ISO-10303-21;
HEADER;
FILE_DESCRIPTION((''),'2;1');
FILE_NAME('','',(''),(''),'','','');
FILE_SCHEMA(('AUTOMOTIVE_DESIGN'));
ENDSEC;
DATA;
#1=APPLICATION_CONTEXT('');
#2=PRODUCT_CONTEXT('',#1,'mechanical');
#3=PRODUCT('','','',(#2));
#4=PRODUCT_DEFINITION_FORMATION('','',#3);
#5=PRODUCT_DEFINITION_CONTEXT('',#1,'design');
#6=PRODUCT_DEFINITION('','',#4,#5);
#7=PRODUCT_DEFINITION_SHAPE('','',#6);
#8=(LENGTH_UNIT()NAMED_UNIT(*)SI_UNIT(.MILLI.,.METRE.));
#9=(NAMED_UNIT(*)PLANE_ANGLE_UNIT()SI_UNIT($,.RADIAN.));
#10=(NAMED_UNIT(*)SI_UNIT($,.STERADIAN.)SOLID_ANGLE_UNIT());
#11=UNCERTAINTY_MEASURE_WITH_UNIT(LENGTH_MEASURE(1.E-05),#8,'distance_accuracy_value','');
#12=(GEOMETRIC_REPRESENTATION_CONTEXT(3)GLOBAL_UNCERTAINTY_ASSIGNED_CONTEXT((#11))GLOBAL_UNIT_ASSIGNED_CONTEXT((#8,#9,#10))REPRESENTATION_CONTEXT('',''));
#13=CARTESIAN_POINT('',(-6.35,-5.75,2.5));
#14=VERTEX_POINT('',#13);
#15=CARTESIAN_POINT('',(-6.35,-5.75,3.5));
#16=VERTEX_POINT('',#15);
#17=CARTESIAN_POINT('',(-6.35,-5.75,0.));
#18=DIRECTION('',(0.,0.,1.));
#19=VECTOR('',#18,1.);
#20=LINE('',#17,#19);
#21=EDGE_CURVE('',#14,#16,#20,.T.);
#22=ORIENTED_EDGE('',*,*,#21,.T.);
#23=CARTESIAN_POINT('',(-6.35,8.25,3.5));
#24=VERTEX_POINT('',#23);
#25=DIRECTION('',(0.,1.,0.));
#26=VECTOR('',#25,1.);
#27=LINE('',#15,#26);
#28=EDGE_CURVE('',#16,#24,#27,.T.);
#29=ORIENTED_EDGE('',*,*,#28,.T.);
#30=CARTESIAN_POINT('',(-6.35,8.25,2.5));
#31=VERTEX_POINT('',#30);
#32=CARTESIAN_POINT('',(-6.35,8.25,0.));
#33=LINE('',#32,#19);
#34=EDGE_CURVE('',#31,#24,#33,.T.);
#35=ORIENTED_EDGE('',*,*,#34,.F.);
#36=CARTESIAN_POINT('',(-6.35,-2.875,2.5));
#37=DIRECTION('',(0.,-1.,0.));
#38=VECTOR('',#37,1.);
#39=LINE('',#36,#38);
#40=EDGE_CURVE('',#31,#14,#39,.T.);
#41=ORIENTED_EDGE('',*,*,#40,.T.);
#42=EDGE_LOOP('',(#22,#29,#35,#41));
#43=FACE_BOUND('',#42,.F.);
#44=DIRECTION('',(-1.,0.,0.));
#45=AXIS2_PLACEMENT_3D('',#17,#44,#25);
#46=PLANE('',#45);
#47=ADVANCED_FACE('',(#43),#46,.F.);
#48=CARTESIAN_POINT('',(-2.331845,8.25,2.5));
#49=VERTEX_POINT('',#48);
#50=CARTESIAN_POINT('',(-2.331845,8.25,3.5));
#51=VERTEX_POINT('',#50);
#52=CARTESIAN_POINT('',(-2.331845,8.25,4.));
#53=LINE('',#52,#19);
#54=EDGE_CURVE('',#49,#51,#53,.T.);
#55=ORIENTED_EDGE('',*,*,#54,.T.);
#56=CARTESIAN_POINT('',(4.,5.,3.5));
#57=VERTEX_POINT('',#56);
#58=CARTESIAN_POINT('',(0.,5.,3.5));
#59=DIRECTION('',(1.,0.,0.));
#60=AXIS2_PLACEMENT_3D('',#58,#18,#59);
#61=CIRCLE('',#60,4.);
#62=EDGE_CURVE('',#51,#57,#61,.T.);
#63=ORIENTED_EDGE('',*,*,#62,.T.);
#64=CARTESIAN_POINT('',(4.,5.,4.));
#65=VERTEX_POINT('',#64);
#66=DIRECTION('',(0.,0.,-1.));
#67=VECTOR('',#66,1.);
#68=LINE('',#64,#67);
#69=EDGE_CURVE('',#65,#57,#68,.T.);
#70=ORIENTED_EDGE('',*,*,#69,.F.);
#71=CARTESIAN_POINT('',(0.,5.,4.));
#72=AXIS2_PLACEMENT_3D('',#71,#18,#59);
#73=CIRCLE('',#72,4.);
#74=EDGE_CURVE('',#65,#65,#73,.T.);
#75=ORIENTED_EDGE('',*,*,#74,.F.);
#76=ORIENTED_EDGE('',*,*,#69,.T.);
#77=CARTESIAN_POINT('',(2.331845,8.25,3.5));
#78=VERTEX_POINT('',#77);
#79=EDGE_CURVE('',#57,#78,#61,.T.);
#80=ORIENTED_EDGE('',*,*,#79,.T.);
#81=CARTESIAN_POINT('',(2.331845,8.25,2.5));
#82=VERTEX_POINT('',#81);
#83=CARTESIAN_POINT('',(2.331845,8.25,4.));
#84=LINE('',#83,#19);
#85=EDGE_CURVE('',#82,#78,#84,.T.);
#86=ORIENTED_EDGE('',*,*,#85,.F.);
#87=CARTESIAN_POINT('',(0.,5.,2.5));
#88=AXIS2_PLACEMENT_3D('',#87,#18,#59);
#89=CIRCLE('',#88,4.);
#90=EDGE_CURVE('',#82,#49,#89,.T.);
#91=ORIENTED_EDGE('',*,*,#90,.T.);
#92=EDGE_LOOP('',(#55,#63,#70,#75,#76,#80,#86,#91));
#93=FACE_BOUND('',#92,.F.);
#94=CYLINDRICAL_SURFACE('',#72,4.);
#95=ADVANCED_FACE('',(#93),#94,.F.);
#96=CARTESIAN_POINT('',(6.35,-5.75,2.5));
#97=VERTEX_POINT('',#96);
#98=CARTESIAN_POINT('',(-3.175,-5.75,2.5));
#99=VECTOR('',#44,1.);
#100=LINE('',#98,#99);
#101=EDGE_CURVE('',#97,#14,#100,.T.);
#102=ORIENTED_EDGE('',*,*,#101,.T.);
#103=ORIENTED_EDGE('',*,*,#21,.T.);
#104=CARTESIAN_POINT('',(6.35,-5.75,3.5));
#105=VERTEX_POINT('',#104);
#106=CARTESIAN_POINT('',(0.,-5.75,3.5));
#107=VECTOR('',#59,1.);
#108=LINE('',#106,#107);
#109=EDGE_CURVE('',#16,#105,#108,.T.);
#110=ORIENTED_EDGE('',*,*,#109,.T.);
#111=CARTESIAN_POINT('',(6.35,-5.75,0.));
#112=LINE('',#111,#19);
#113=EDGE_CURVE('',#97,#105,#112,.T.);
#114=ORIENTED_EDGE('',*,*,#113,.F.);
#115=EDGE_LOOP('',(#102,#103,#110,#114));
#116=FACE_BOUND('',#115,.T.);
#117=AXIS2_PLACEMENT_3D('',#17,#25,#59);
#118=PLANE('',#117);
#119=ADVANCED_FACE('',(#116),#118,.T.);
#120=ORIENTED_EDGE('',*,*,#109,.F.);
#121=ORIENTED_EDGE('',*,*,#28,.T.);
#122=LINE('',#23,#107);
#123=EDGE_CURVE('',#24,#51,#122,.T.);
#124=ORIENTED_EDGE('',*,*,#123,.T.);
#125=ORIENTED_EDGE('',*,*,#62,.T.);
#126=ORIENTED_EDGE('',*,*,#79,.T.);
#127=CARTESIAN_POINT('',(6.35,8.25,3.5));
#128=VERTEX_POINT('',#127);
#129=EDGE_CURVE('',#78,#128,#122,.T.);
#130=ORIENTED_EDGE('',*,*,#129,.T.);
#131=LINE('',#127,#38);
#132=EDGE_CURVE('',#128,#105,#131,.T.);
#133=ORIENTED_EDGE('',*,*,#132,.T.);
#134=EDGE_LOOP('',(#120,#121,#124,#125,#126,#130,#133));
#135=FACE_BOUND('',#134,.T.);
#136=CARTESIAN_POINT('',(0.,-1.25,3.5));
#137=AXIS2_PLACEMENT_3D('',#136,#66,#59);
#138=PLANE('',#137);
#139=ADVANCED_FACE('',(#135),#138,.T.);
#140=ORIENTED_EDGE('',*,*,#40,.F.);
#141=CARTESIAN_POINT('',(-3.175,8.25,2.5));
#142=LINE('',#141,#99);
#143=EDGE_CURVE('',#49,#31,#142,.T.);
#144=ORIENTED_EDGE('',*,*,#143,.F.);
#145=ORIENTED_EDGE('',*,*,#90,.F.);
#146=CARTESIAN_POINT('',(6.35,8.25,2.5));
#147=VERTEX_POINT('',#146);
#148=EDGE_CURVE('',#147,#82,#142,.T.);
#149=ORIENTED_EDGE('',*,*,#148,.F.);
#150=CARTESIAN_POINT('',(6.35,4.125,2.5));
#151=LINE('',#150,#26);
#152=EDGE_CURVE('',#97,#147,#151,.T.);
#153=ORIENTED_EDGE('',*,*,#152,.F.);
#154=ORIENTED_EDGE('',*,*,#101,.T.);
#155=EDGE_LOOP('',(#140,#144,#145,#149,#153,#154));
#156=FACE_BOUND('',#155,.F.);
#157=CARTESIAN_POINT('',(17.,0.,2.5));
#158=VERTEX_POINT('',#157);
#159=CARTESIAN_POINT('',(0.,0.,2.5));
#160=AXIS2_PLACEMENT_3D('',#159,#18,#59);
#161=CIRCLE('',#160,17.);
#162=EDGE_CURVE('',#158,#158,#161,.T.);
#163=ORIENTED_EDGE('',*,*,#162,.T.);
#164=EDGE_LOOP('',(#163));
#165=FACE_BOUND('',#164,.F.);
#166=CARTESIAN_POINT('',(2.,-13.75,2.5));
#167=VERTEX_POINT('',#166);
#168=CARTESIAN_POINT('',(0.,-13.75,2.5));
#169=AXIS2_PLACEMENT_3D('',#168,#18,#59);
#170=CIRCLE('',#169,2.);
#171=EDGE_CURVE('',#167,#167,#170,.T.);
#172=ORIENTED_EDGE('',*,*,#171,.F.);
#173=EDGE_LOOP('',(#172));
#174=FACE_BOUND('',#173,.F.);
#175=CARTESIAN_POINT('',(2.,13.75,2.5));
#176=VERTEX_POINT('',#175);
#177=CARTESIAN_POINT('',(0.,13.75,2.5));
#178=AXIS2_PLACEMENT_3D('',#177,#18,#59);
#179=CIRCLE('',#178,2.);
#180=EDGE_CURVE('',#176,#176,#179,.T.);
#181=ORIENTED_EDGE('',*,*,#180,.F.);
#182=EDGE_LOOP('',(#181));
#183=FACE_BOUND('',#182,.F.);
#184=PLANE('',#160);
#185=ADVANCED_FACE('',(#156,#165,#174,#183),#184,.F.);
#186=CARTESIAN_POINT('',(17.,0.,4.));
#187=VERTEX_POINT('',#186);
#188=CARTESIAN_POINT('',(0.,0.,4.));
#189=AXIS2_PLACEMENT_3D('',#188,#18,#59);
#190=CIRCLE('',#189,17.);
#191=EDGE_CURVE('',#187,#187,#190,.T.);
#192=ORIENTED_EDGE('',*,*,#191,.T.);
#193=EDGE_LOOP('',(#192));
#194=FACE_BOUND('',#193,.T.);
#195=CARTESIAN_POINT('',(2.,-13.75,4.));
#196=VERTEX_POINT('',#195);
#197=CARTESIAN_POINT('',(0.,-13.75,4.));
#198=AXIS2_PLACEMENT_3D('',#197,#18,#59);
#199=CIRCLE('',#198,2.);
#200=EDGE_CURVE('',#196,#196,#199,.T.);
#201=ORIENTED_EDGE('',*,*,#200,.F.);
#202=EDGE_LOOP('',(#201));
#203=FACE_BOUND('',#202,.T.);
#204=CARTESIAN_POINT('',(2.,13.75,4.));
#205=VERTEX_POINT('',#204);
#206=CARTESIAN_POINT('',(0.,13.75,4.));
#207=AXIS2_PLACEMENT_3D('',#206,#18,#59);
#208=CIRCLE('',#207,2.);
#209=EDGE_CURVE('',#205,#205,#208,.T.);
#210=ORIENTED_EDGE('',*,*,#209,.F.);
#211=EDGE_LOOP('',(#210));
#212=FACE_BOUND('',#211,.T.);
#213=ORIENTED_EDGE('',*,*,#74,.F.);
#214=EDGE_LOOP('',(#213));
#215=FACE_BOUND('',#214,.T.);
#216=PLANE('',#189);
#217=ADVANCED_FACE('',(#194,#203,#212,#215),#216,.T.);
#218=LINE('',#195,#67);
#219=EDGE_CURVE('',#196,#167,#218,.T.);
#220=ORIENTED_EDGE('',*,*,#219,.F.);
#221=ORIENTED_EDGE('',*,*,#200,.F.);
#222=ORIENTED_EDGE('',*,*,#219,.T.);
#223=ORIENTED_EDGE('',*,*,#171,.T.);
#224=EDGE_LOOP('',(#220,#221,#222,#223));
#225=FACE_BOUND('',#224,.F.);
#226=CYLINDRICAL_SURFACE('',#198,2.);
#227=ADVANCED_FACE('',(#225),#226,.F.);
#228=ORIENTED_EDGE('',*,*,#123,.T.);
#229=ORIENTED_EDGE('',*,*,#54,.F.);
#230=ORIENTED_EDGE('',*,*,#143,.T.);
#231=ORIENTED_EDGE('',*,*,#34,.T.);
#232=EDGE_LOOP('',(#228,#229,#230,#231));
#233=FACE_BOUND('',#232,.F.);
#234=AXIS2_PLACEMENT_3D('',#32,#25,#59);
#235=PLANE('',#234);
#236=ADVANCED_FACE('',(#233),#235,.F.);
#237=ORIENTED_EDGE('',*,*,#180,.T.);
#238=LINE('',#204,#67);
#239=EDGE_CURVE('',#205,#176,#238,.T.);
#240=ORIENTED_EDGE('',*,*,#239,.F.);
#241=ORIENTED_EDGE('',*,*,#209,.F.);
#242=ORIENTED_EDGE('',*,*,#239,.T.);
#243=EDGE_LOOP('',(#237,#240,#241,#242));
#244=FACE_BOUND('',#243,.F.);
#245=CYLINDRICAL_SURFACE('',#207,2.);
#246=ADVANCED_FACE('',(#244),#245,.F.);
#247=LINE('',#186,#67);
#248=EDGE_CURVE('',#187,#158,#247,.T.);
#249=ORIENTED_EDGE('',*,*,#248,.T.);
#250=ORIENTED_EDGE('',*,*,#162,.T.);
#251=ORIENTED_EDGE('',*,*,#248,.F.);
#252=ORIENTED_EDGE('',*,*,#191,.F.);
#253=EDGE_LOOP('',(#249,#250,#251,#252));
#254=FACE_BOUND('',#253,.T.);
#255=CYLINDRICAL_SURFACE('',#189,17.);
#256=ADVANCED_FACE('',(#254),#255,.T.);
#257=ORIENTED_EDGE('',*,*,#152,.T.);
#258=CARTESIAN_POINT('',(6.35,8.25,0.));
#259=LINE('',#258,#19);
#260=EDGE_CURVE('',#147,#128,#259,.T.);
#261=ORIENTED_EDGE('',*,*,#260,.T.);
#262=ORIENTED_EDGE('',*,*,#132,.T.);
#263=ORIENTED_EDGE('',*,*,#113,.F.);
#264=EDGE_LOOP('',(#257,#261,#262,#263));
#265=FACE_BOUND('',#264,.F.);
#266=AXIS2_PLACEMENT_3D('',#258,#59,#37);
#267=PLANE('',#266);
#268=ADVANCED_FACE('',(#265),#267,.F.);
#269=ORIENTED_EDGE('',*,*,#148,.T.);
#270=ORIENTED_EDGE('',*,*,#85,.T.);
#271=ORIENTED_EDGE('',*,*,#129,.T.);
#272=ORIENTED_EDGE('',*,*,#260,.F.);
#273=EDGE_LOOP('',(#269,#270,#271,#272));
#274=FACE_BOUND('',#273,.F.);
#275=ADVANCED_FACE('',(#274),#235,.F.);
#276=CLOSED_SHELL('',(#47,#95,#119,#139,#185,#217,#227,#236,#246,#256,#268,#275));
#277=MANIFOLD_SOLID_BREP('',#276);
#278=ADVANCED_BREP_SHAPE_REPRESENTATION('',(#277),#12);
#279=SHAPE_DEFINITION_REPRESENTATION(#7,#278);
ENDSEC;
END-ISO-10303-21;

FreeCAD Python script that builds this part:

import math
import FreeCAD as App
import Part
import Sketcher
from FreeCAD import Vector
Q = App.Units.Quantity


def add_polygon(sketch, points):
    """Adds a closed chain of lines whose ends are joined by coincident constraints."""
    first, n = sketch.GeometryCount, len(points)
    for a, b in zip(points, points[1:] + points[:1]):
        sketch.addGeometry(Part.LineSegment(App.Vector(*a, 0), App.Vector(*b, 0)), False)
    for i in range(n):
        sketch.addConstraint(Sketcher.Constraint("Coincident", first + i, 2, first + (i + 1) % n, 1))

doc = App.newDocument("Part")
params = doc.addObject("Spreadsheet::Sheet", "Params")
for row, (alias, value) in enumerate([
    ("sketch1_diameter", "18.2 mm"),
    ("sketch1_width", "12.7 mm"),
    ("sketch1_height", "11.5 mm"),
    ("pad1_length", "14 mm"),
    ("sketch2_radius", "9.1 mm"),
    ("sketch2_width", "12.7 mm"),
    ("pocket1_length", "5 mm"),
    ("sketch3_diameter", "34 mm"),
    ("sketch3_diameter2", "4 mm"),
    ("sketch3_diameter3", "8 mm"),
    ("pad2_length", "1.5 mm"),
    ("sketch4_height", "14 mm"),
    ("sketch4_width", "12.7 mm"),
    ("pocket2_length", "3.5 mm"),
], start=1):
    params.set(f"A{row}", alias)
    params.set(f"B{row}", "=" + value)
    params.setAlias(f"B{row}", alias)

body = doc.addObject("PartDesign::Body", "Body")

# Sketch on XY plane
sketch1 = body.newObject("Sketcher::SketchObject", "Sketch")
sketch1.AttachmentSupport = (doc.getObject("XY_Plane"), [""])
sketch1.MapMode = "FlatFace"
sketch1.addGeometry(Part.Circle(Vector(0, 0, 0), Vector(0, 0, 1), 9), False)  # 0
add_polygon(sketch1, [(6, -6), (-6, -6), (-6, 6), (6, 6)])  # lines 1-4
sketch1.addConstraint(Sketcher.Constraint("Horizontal", 1))
sketch1.addConstraint(Sketcher.Constraint("Vertical", 2))
sketch1.addConstraint(Sketcher.Constraint("Horizontal", 3))
sketch1.addConstraint(Sketcher.Constraint("Vertical", 4))
sketch1.addConstraint(Sketcher.Constraint("Coincident", 0, 3, -1, 1))
sketch1.addConstraint(Sketcher.Constraint("Symmetric", 1, 2, 3, 2, -1, 1))
sketch1.addConstraint(Sketcher.Constraint("Diameter", 0, Q("18.2 mm")))
sketch1.addConstraint(Sketcher.Constraint("DistanceX", 1, 2, 1, 1, Q("12.7 mm")))
sketch1.addConstraint(Sketcher.Constraint("DistanceY", 2, 1, 2, 2, Q("11.5 mm")))
sketch1.setExpression("Constraints[10]", "Params.sketch1_diameter")
sketch1.setExpression("Constraints[11]", "Params.sketch1_width")
sketch1.setExpression("Constraints[12]", "Params.sketch1_height")
pad1 = body.newObject("PartDesign::Pad", "Pad")
pad1.Profile = sketch1
pad1.setExpression("Length", "Params.pad1_length")

# Sketch on XY plane
sketch2 = body.newObject("Sketcher::SketchObject", "Sketch001")
sketch2.AttachmentSupport = (doc.getObject("XY_Plane"), [""])
sketch2.MapMode = "FlatFace"
sketch2.addGeometry(Part.LineSegment(Vector(6.3, 6.5, 0), Vector(6.3, 5.8, 0)), False)
sketch2.addGeometry(Part.LineSegment(Vector(6.3, 5.8, 0), Vector(-6.3, 5.8, 0)), False)
sketch2.addGeometry(Part.LineSegment(Vector(-6.3, 5.8, 0), Vector(-6.3, 6.5, 0)), False)
sketch2.addGeometry(Part.ArcOfCircle(Part.Circle(Vector(0, 0, 0), Vector(0, 0, 1), 9.1), math.radians(114.96), math.radians(134.25)), False)
sketch2.addGeometry(Part.LineSegment(Vector(-3.8, 8.2, 0), Vector(3.8, 8.2, 0)), False)
sketch2.addGeometry(Part.ArcOfCircle(Part.Circle(Vector(0, 0, 0), Vector(0, 0, 1), 9.1), math.radians(45.75), math.radians(65.04)), False)
sketch2.addConstraint(Sketcher.Constraint("Coincident", 0, 2, 1, 1))
sketch2.addConstraint(Sketcher.Constraint("Coincident", 1, 2, 2, 1))
sketch2.addConstraint(Sketcher.Constraint("Coincident", 2, 2, 3, 2))
sketch2.addConstraint(Sketcher.Constraint("Coincident", 3, 1, 4, 1))
sketch2.addConstraint(Sketcher.Constraint("Coincident", 4, 2, 5, 2))
sketch2.addConstraint(Sketcher.Constraint("Coincident", 5, 1, 0, 1))
sketch2.addConstraint(Sketcher.Constraint("Vertical", 0))
sketch2.addConstraint(Sketcher.Constraint("Horizontal", 1))
sketch2.addConstraint(Sketcher.Constraint("Vertical", 2))
sketch2.addConstraint(Sketcher.Constraint("Horizontal", 4))
sketch2.addConstraint(Sketcher.Constraint("Coincident", 3, 3, -1, 1))
sketch2.addConstraint(Sketcher.Constraint("Coincident", 5, 3, -1, 1))
sketch2.addConstraint(Sketcher.Constraint("Equal", 3, 5))
sketch2.addConstraint(Sketcher.Constraint("Horizontal", 2, 2, 5, 1))
sketch2.addConstraint(Sketcher.Constraint("Radius", 3, Q("9.1 mm")))
sketch2.addConstraint(Sketcher.Constraint("DistanceX", 1, 2, 1, 1, Q("12.7 mm")))
sketch2.addConstraint(Sketcher.Constraint("DistanceY", 1, 2, 3, 1, Q("2.5 mm")))
sketch2.addConstraint(Sketcher.Constraint("DistanceY", -1, 1, 0, 2, Q("5.75 mm")))
sketch2.setExpression("Constraints[14]", "Params.sketch2_radius")
sketch2.setExpression("Constraints[15]", "Params.sketch2_width")
pocket1 = body.newObject("PartDesign::Pocket", "Pocket")
pocket1.Profile = sketch2
pocket1.setExpression("Length", "Params.pocket1_length")
pocket1.Reversed = True
body2 = doc.addObject("PartDesign::Body", "Body001")

# Sketch on XY plane
sketch3 = body2.newObject("Sketcher::SketchObject", "Sketch002")
sketch3.AttachmentSupport = (doc.getObject("XY_Plane001"), [""])
sketch3.MapMode = "FlatFace"
sketch3.AttachmentOffset = App.Placement(Vector(0, 0, 4), App.Rotation())
sketch3.addGeometry(Part.Circle(Vector(0, 0, 0), Vector(0, 0, 1), 17), False)
sketch3.addGeometry(Part.Circle(Vector(0, -13.8, 0), Vector(0, 0, 1), 2), False)
sketch3.addGeometry(Part.Circle(Vector(0, 5, 0), Vector(0, 0, 1), 4), False)
sketch3.addGeometry(Part.Circle(Vector(0, 13.8, 0), Vector(0, 0, 1), 2), False)
sketch3.addConstraint(Sketcher.Constraint("Coincident", 0, 3, -1, 1))
sketch3.addConstraint(Sketcher.Constraint("Equal", 1, 3))
sketch3.addConstraint(Sketcher.Constraint("Symmetric", 1, 3, 3, 3, -1, 1))
sketch3.addConstraint(Sketcher.Constraint("PointOnObject", 1, 3, -2))
sketch3.addConstraint(Sketcher.Constraint("PointOnObject", 2, 3, -2))
sketch3.addConstraint(Sketcher.Constraint("Diameter", 0, Q("34 mm")))
sketch3.addConstraint(Sketcher.Constraint("Diameter", 1, Q("4 mm")))
sketch3.addConstraint(Sketcher.Constraint("Diameter", 2, Q("8 mm")))
sketch3.addConstraint(Sketcher.Constraint("DistanceY", -1, 1, 2, 3, Q("5 mm")))
sketch3.addConstraint(Sketcher.Constraint("DistanceY", 1, 3, 3, 3, Q("27.5 mm")))
sketch3.setExpression("Constraints[5]", "Params.sketch3_diameter")
sketch3.setExpression("Constraints[6]", "Params.sketch3_diameter2")
sketch3.setExpression("Constraints[7]", "Params.sketch3_diameter3")
pad2 = body2.newObject("PartDesign::Pad", "Pad001")
pad2.Profile = sketch3
pad2.setExpression("Length", "Params.pad2_length")
pad2.Reversed = True

# Sketch on XY plane
sketch4 = body2.newObject("Sketcher::SketchObject", "Sketch003")
sketch4.AttachmentSupport = (doc.getObject("XY_Plane001"), [""])
sketch4.MapMode = "FlatFace"
add_polygon(sketch4, [(-6, -6), (-6, 8), (6, 8), (6, -6)])  # lines 0-3
sketch4.addConstraint(Sketcher.Constraint("Vertical", 0))
sketch4.addConstraint(Sketcher.Constraint("Horizontal", 1))
sketch4.addConstraint(Sketcher.Constraint("Vertical", 2))
sketch4.addConstraint(Sketcher.Constraint("Horizontal", 3))
sketch4.addConstraint(Sketcher.Constraint("DistanceY", 0, 1, 0, 2, Q("14 mm")))
sketch4.addConstraint(Sketcher.Constraint("DistanceX", 1, 1, 1, 2, Q("12.7 mm")))
sketch4.addConstraint(Sketcher.Constraint("DistanceX", 0, 2, -1, 1, Q("6.35 mm")))
sketch4.addConstraint(Sketcher.Constraint("DistanceY", -1, 1, 0, 2, Q("8.25 mm")))
sketch4.setExpression("Constraints[8]", "Params.sketch4_height")
sketch4.setExpression("Constraints[9]", "Params.sketch4_width")
pocket2 = body2.newObject("PartDesign::Pocket", "Pocket001")
pocket2.Profile = sketch4
pocket2.setExpression("Length", "Params.pocket2_length")
pocket2.Reversed = True
body.Visibility = False

doc.recompute()
